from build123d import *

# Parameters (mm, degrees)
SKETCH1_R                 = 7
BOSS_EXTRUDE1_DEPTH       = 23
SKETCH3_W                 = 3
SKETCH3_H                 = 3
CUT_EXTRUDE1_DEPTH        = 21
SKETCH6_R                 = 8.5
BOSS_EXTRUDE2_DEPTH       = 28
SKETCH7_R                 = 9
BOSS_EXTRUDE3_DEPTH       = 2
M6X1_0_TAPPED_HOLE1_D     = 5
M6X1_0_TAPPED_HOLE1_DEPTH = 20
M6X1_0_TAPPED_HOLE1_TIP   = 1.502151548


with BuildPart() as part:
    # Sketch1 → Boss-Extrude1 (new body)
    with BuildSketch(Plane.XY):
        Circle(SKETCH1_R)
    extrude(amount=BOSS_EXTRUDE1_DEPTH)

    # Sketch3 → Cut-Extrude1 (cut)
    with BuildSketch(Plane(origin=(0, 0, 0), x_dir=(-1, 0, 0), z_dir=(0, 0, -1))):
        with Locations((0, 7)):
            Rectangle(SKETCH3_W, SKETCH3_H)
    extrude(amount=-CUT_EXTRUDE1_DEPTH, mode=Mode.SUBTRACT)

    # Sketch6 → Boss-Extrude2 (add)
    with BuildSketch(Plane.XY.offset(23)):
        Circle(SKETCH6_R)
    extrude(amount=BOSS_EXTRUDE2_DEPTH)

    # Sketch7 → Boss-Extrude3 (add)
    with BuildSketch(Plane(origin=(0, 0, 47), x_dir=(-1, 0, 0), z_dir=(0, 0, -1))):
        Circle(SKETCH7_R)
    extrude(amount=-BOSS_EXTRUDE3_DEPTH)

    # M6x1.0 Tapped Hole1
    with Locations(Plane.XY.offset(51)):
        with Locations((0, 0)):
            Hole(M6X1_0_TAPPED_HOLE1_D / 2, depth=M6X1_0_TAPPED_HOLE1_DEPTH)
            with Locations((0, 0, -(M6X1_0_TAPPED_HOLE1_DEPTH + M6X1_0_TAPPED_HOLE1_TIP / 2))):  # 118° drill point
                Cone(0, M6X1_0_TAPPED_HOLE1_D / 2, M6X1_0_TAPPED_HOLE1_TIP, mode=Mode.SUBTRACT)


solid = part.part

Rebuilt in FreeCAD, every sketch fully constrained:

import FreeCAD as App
import Part
import Sketcher
from FreeCAD import Vector

doc = App.newDocument("Part")
params = doc.addObject("Spreadsheet::Sheet", "Params")
for row, (alias, value) in enumerate([
    ("sketch1_diameter", "14 mm"),
    ("pad1_length", "23 mm"),
    ("sketch2_width", "3 mm"),
    ("pocket1_length", "21 mm"),
    ("sketch3_diameter", "17 mm"),
    ("pad2_length", "28 mm"),
    ("sketch4_diameter", "18 mm"),
    ("pad3_length", "2 mm"),
    ("sketch5_diameter", "5 mm"),
    ("hole_diameter", "5 mm"),
    ("hole_depth", "20 mm"),
], start=1):
    params.set(f"A{row}", alias)
    params.set(f"B{row}", "=" + value)
    params.setAlias(f"B{row}", alias)

body = doc.addObject("PartDesign::Body", "Body")

# Sketch on XY plane
sketch1 = doc.addObject("Sketcher::SketchObject", "Sketch")
body.addObject(sketch1)
sketch1.AttachmentSupport = (doc.XY_Plane, [""])
sketch1.MapMode = "FlatFace"
sketch1.addGeometry(Part.Circle(Vector(0, 0, 0), Vector(0, 0, 1), 7), False)
sketch1.addConstraint([
    Sketcher.Constraint("Coincident", 0, 3, -1, 1),
    Sketcher.Constraint("Diameter", 0, 14.0),
])
sketch1.setExpression("Constraints[1]", "Params.sketch1_diameter")
pad1 = doc.addObject("PartDesign::Pad", "Pad")
body.addObject(pad1)
pad1.Profile = sketch1
pad1.setExpression("Length", "Params.pad1_length")

# Sketch on XY plane
sketch2 = doc.addObject("Sketcher::SketchObject", "Sketch001")
body.addObject(sketch2)
sketch2.AttachmentSupport = (doc.XY_Plane, [""])
sketch2.MapMode = "FlatFace"
sketch2.addGeometry([
    Part.LineSegment(Vector(1.5, 8.5, 0), Vector(1.5, 5.5, 0)),
    Part.LineSegment(Vector(1.5, 5.5, 0), Vector(-1.5, 5.5, 0)),
    Part.LineSegment(Vector(-1.5, 5.5, 0), Vector(-1.5, 8.5, 0)),
    Part.LineSegment(Vector(-1.5, 8.5, 0), Vector(1.5, 8.5, 0)),
], False)
sketch2.addConstraint([
    Sketcher.Constraint("Coincident", 0, 2, 1, 1),
    Sketcher.Constraint("Coincident", 1, 2, 2, 1),
    Sketcher.Constraint("Coincident", 2, 2, 3, 1),
    Sketcher.Constraint("Coincident", 3, 2, 0, 1),
    Sketcher.Constraint("Vertical", 0),
    Sketcher.Constraint("Horizontal", 1),
    Sketcher.Constraint("Vertical", 2),
    Sketcher.Constraint("Horizontal", 3),
    Sketcher.Constraint("Equal", 3, 0),
    Sketcher.Constraint("DistanceX", 1, 2, 1, 1, 3.0),
    Sketcher.Constraint("DistanceX", -1, 1, 0, 2, 1.5),
    Sketcher.Constraint("DistanceY", -1, 1, 0, 2, 5.5),
])
sketch2.setExpression("Constraints[9]", "Params.sketch2_width")
pocket1 = doc.addObject("PartDesign::Pocket", "Pocket")
body.addObject(pocket1)
pocket1.Profile = sketch2
pocket1.setExpression("Length", "Params.pocket1_length")
pocket1.Reversed = True

# Sketch on XY plane
sketch3 = doc.addObject("Sketcher::SketchObject", "Sketch002")
body.addObject(sketch3)
sketch3.AttachmentSupport = (doc.XY_Plane, [""])
sketch3.MapMode = "FlatFace"
sketch3.AttachmentOffset = App.Placement(Vector(0, 0, 23), App.Rotation())
sketch3.addGeometry(Part.Circle(Vector(0, 0, 0), Vector(0, 0, 1), 8), False)
sketch3.addConstraint([
    Sketcher.Constraint("Coincident", 0, 3, -1, 1),
    Sketcher.Constraint("Diameter", 0, 17.0),
])
sketch3.setExpression("Constraints[1]", "Params.sketch3_diameter")
pad2 = doc.addObject("PartDesign::Pad", "Pad001")
body.addObject(pad2)
pad2.Profile = sketch3
pad2.setExpression("Length", "Params.pad2_length")

# Sketch on XY plane
sketch4 = doc.addObject("Sketcher::SketchObject", "Sketch003")
body.addObject(sketch4)
sketch4.AttachmentSupport = (doc.XY_Plane, [""])
sketch4.MapMode = "FlatFace"
sketch4.AttachmentOffset = App.Placement(Vector(0, 0, 47), App.Rotation())
sketch4.addGeometry(Part.Circle(Vector(0, 0, 0), Vector(0, 0, 1), 9), False)
sketch4.addConstraint([
    Sketcher.Constraint("Coincident", 0, 3, -1, 1),
    Sketcher.Constraint("Diameter", 0, 18.0),
])
sketch4.setExpression("Constraints[1]", "Params.sketch4_diameter")
pad3 = doc.addObject("PartDesign::Pad", "Pad002")
body.addObject(pad3)
pad3.Profile = sketch4
pad3.setExpression("Length", "Params.pad3_length")

# Sketch on XY plane
sketch5 = doc.addObject("Sketcher::SketchObject", "Sketch004")
body.addObject(sketch5)
sketch5.AttachmentSupport = (doc.XY_Plane, [""])
sketch5.MapMode = "FlatFace"
sketch5.AttachmentOffset = App.Placement(Vector(0, 0, 51), App.Rotation())
sketch5.addGeometry(Part.Circle(Vector(0, 0, 0), Vector(0, 0, 1), 2.5), False)
sketch5.addConstraint([
    Sketcher.Constraint("Coincident", 0, 3, -1, 1),
    Sketcher.Constraint("Diameter", 0, 5.0),
])
sketch5.setExpression("Constraints[1]", "Params.sketch5_diameter")
doc.recompute()
hole = doc.addObject("PartDesign::Hole", "Hole")
body.addObject(hole)
hole.Profile = sketch5
hole.ThreadType = "None"
hole.setExpression("Diameter", "Params.hole_diameter")
hole.DepthType = "Dimension"
hole.setExpression("Depth", "Params.hole_depth")
hole.DrillPoint = "Angled"
hole.DrillPointAngle = 118

doc.recompute()
